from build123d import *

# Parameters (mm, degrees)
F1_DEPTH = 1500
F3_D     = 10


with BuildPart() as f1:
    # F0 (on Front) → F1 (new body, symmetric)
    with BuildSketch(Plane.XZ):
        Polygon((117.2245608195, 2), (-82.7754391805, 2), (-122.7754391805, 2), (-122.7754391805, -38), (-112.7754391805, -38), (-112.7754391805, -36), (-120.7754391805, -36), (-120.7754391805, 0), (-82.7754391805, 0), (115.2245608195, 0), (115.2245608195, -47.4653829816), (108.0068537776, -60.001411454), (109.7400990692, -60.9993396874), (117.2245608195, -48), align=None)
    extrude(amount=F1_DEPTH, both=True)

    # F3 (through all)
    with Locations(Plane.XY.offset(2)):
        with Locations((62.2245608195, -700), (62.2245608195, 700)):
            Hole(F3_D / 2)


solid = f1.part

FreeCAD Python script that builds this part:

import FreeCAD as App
import Part
import Sketcher
from FreeCAD import Vector
Q = App.Units.Quantity

doc = App.newDocument("Part")
params = doc.addObject("Spreadsheet::Sheet", "Params")
for row, (alias, value) in enumerate([
    ("sketch1_width", "240 mm"),
    ("sketch1_width2", "10 mm"),
    ("sketch1_width3", "8 mm"),
    ("sketch1_width4", "236 mm"),
    ("sketch1_height", "40 mm"),
    ("pad1_length", "3000 mm"),
    ("sketch2_diameter", "10 mm"),
    ("hole_diameter", "10 mm"),
], start=1):
    params.set(f"A{row}", alias)
    params.set(f"B{row}", "=" + value)
    params.setAlias(f"B{row}", alias)

body = doc.addObject("PartDesign::Body", "Body")

# Sketch on XZ plane
sketch1 = doc.addObject("Sketcher::SketchObject", "Sketch")
body.addObject(sketch1)
sketch1.AttachmentSupport = (doc.XZ_Plane, [""])
sketch1.MapMode = "FlatFace"
sketch1.addGeometry([
    Part.LineSegment(Vector(117.2, 2, 0), Vector(-122.8, 2, 0)),  # 0
    Part.LineSegment(Vector(-122.8, 2, 0), Vector(-122.8, -38, 0)),  # 1
    Part.LineSegment(Vector(-122.8, -38, 0), Vector(-112.8, -38, 0)),  # 2
    Part.LineSegment(Vector(-112.8, -38, 0), Vector(-112.8, -36, 0)),  # 3
    Part.LineSegment(Vector(-112.8, -36, 0), Vector(-120.8, -36, 0)),  # 4
    Part.LineSegment(Vector(-120.8, -36, 0), Vector(-120.8, 0, 0)),  # 5
    Part.LineSegment(Vector(-120.8, 0, 0), Vector(115.2, 0, 0)),  # 6
    Part.LineSegment(Vector(115.2, 0, 0), Vector(115.2, -47.5, 0)),  # 7
    Part.LineSegment(Vector(115.2, -47.5, 0), Vector(108, -60, 0)),  # 8
    Part.LineSegment(Vector(108, -60, 0), Vector(109.7, -61, 0)),  # 9
    Part.LineSegment(Vector(109.7, -61, 0), Vector(117.2, -48, 0)),  # 10
    Part.LineSegment(Vector(117.2, -48, 0), Vector(117.2, 2, 0)),  # 11
], False)
sketch1.addConstraint([
    Sketcher.Constraint("Coincident", 0, 2, 1, 1),
    Sketcher.Constraint("Coincident", 1, 2, 2, 1),
    Sketcher.Constraint("Coincident", 2, 2, 3, 1),
    Sketcher.Constraint("Coincident", 3, 2, 4, 1),
    Sketcher.Constraint("Coincident", 4, 2, 5, 1),
    Sketcher.Constraint("Coincident", 5, 2, 6, 1),
    Sketcher.Constraint("Coincident", 6, 2, 7, 1),
    Sketcher.Constraint("Coincident", 7, 2, 8, 1),
    Sketcher.Constraint("Coincident", 8, 2, 9, 1),
    Sketcher.Constraint("Coincident", 9, 2, 10, 1),
    Sketcher.Constraint("Coincident", 10, 2, 11, 1),
    Sketcher.Constraint("Coincident", 11, 2, 0, 1),
    Sketcher.Constraint("Horizontal", 0),
    Sketcher.Constraint("Vertical", 1),
    Sketcher.Constraint("Horizontal", 2),
    Sketcher.Constraint("Vertical", 3),
    Sketcher.Constraint("Horizontal", 4),
    Sketcher.Constraint("Vertical", 5),
    Sketcher.Constraint("Horizontal", 6),
    Sketcher.Constraint("Vertical", 7),
    Sketcher.Constraint("Vertical", 11),
    Sketcher.Constraint("PointOnObject", 5, 2, -1),
    Sketcher.Constraint("Perpendicular", 8, 9),
    Sketcher.Constraint("Perpendicular", 9, 10),
    Sketcher.Constraint("DistanceX", 0, 2, 0, 1, Q("240 mm")),
    Sketcher.Constraint("DistanceX", 2, 1, 2, 2, Q("10 mm")),
    Sketcher.Constraint("DistanceX", 4, 2, 4, 1, Q("8 mm")),
    Sketcher.Constraint("DistanceX", 6, 1, 6, 2, Q("236 mm")),
    Sketcher.Constraint("DistanceY", 1, 2, 1, 1, Q("40 mm")),
    Sketcher.Constraint("DistanceY", 3, 1, 3, 2, Q("2 mm")),
    Sketcher.Constraint("DistanceY", 5, 1, 5, 2, Q("36 mm")),
    Sketcher.Constraint("DistanceY", 11, 1, 11, 2, Q("50 mm")),
    Sketcher.Constraint("Distance", 9, Q("2 mm")),
    Sketcher.Constraint("Distance", 10, Q("15 mm")),
    Sketcher.Constraint("DistanceX", -1, 1, 9, 2, Q("109.740099 mm")),
    Sketcher.Constraint("DistanceY", 7, 2, 7, 1, Q("47.465383 mm")),
])
sketch1.setExpression("Constraints[24]", "Params.sketch1_width")
sketch1.setExpression("Constraints[25]", "Params.sketch1_width2")
sketch1.setExpression("Constraints[26]", "Params.sketch1_width3")
sketch1.setExpression("Constraints[27]", "Params.sketch1_width4")
sketch1.setExpression("Constraints[28]", "Params.sketch1_height")
pad1 = doc.addObject("PartDesign::Pad", "Pad")
body.addObject(pad1)
pad1.Profile = sketch1
pad1.setExpression("Length", "Params.pad1_length")
pad1.Midplane = True

# Sketch on XY plane
sketch2 = doc.addObject("Sketcher::SketchObject", "Sketch001")
body.addObject(sketch2)
sketch2.AttachmentSupport = (doc.XY_Plane, [""])
sketch2.MapMode = "FlatFace"
sketch2.AttachmentOffset = App.Placement(Vector(0, 0, 2), App.Rotation())
sketch2.addGeometry([
    Part.Circle(Vector(62, -700, 0), Vector(0, 0, 1), 5),
    Part.Circle(Vector(62, 700, 0), Vector(0, 0, 1), 5),
], False)
sketch2.addConstraint([
    Sketcher.Constraint("Equal", 0, 1),
    Sketcher.Constraint("Symmetric", 0, 3, 1, 3, -1),
    Sketcher.Constraint("Diameter", 0, Q("10 mm")),
    Sketcher.Constraint("DistanceY", 0, 3, -1, 1, Q("700 mm")),
    Sketcher.Constraint("DistanceX", -1, 1, 0, 3, Q("62.224561 mm")),
])
sketch2.setExpression("Constraints[2]", "Params.sketch2_diameter")
doc.recompute()
hole = doc.addObject("PartDesign::Hole", "Hole")
body.addObject(hole)
hole.Profile = sketch2
hole.ThreadType = "None"
hole.setExpression("Diameter", "Params.hole_diameter")
hole.DepthType = "ThroughAll"

doc.recompute()
